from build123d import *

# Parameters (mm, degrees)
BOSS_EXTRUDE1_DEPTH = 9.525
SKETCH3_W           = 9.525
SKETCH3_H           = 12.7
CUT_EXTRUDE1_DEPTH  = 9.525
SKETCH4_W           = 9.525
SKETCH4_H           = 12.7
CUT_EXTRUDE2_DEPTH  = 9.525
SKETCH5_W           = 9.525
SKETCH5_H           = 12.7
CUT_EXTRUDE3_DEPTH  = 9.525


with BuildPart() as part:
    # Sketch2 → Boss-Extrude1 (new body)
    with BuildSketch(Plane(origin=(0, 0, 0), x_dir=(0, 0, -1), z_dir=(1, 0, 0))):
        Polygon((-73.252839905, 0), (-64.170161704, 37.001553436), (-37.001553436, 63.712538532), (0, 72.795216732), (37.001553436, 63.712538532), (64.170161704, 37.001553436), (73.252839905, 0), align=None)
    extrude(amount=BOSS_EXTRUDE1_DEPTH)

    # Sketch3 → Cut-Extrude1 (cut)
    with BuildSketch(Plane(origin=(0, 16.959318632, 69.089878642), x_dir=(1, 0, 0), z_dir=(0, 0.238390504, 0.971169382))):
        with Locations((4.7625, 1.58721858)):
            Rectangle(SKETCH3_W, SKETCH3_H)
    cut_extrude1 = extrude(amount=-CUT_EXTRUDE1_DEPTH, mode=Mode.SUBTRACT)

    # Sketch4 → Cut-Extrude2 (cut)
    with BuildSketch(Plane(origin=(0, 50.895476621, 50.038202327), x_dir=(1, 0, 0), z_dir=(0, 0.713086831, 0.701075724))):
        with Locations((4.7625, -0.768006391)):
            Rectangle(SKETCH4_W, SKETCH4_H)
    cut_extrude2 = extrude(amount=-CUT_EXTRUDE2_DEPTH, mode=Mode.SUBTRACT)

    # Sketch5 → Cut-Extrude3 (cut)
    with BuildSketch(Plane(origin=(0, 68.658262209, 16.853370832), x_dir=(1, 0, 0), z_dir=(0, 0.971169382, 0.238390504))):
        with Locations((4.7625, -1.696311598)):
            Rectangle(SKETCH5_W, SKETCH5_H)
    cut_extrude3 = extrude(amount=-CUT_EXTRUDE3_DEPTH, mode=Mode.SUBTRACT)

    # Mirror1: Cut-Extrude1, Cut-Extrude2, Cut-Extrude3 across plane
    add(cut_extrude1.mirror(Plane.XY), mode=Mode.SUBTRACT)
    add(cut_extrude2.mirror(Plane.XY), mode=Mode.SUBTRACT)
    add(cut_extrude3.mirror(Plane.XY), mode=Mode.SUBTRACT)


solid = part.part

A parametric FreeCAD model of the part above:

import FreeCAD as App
import Part
import Sketcher

V = App.Vector
Q = App.Units.Quantity

doc = App.newDocument("Part")
body = doc.addObject("PartDesign::Body", "Body")

# Sketch on YZ plane
sketch1 = body.newObject("Sketcher::SketchObject", "Sketch")
sketch1.AttachmentSupport = (doc.getObject("YZ_Plane"), [""])
sketch1.MapMode = "FlatFace"
sketch1.addGeometry(Part.LineSegment(V(37, 64, 0), V(0, 73, 0)), False)
sketch1.addGeometry(Part.LineSegment(V(0, 73, 0), V(0, -73, 0)), False)
sketch1.addGeometry(Part.LineSegment(V(0, -73, 0), V(37, -64, 0)), False)
sketch1.addGeometry(Part.LineSegment(V(37, -64, 0), V(64, -37, 0)), False)
sketch1.addGeometry(Part.LineSegment(V(64, -37, 0), V(73, 0, 0)), False)
sketch1.addGeometry(Part.LineSegment(V(73, 0, 0), V(64, 37, 0)), False)
sketch1.addGeometry(Part.LineSegment(V(64, 37, 0), V(37, 64, 0)), False)
sketch1.addConstraint(Sketcher.Constraint("Coincident", 0, 2, 1, 1))
sketch1.addConstraint(Sketcher.Constraint("Coincident", 1, 2, 2, 1))
sketch1.addConstraint(Sketcher.Constraint("Coincident", 2, 2, 3, 1))
sketch1.addConstraint(Sketcher.Constraint("Coincident", 3, 2, 4, 1))
sketch1.addConstraint(Sketcher.Constraint("Coincident", 4, 2, 5, 1))
sketch1.addConstraint(Sketcher.Constraint("Coincident", 5, 2, 6, 1))
sketch1.addConstraint(Sketcher.Constraint("Coincident", 6, 2, 0, 1))
sketch1.addConstraint(Sketcher.Constraint("Vertical", 1))
sketch1.addConstraint(Sketcher.Constraint("Symmetric", 0, 2, 1, 2, -1, 1))
sketch1.addConstraint(Sketcher.Constraint("Symmetric", 3, 2, 5, 2, -1))
sketch1.addConstraint(Sketcher.Constraint("Symmetric", 2, 2, 6, 2, -1))
sketch1.addConstraint(Sketcher.Constraint("PointOnObject", 4, 2, -1))
sketch1.addConstraint(Sketcher.Constraint("Perpendicular", 0, 4))
sketch1.addConstraint(Sketcher.Constraint("Equal", 2, 3))
sketch1.addConstraint(Sketcher.Constraint("Equal", 3, 4))
sketch1.addConstraint(Sketcher.Constraint("Distance", 0, Q("1.5 in")))
sketch1.addConstraint(Sketcher.Constraint("DistanceY", 1, 2, 1, 1, Q("146.50568 mm")))
sketch1.addConstraint(Sketcher.Constraint("DistanceY", 2, 2, 0, 2, Q("137.423002 mm")))
pad1 = body.newObject("PartDesign::Pad", "Pad")
pad1.Profile = sketch1
pad1.Length = Q("0.375 in")

# Sketch on an angled plane
sketch2 = body.newObject("Sketcher::SketchObject", "Sketch001")
sketch2.Placement = App.Placement(V(0, 16.959319, 69.089879), App.Rotation(V(1, 0, 0), V(0, 0.971169382, -0.238390504), V(0, 0.238390504, 0.971169382), "ZXY"))
sketch2.addGeometry(Part.LineSegment(V(0, 8, 0), V(0, -5, 0)), False)
sketch2.addGeometry(Part.LineSegment(V(0, -5, 0), V(10, -5, 0)), False)
sketch2.addGeometry(Part.LineSegment(V(10, -5, 0), V(10, 8, 0)), False)
sketch2.addGeometry(Part.LineSegment(V(10, 8, 0), V(0, 8, 0)), False)
sketch2.addConstraint(Sketcher.Constraint("Coincident", 0, 2, 1, 1))
sketch2.addConstraint(Sketcher.Constraint("Coincident", 1, 2, 2, 1))
sketch2.addConstraint(Sketcher.Constraint("Coincident", 2, 2, 3, 1))
sketch2.addConstraint(Sketcher.Constraint("Coincident", 3, 2, 0, 1))
sketch2.addConstraint(Sketcher.Constraint("Vertical", 0))
sketch2.addConstraint(Sketcher.Constraint("Horizontal", 1))
sketch2.addConstraint(Sketcher.Constraint("Vertical", 2))
sketch2.addConstraint(Sketcher.Constraint("Horizontal", 3))
sketch2.addConstraint(Sketcher.Constraint("PointOnObject", 0, 2, -2))
sketch2.addConstraint(Sketcher.Constraint("DistanceY", 0, 2, 0, 1, Q("0.5 in")))
sketch2.addConstraint(Sketcher.Constraint("DistanceX", 1, 1, 1, 2, Q("0.375 in")))
sketch2.addConstraint(Sketcher.Constraint("DistanceY", 0, 2, -1, 1, Q("4.762781 mm")))
pocket1 = body.newObject("PartDesign::Pocket", "Pocket")
pocket1.Profile = sketch2
pocket1.Length = Q("0.375 in")

# Sketch on an angled plane
sketch3 = body.newObject("Sketcher::SketchObject", "Sketch002")
sketch3.Placement = App.Placement(V(0, 50.895477, 50.038202), App.Rotation(V(1, 0, 0), V(0, 0.701075724, -0.713086831), V(0, 0.713086831, 0.701075724), "ZXY"))
sketch3.addGeometry(Part.LineSegment(V(0, 6, 0), V(0, -7, 0)), False)
sketch3.addGeometry(Part.LineSegment(V(0, -7, 0), V(10, -7, 0)), False)
sketch3.addGeometry(Part.LineSegment(V(10, -7, 0), V(10, 6, 0)), False)
sketch3.addGeometry(Part.LineSegment(V(10, 6, 0), V(0, 6, 0)), False)
sketch3.addConstraint(Sketcher.Constraint("Coincident", 0, 2, 1, 1))
sketch3.addConstraint(Sketcher.Constraint("Coincident", 1, 2, 2, 1))
sketch3.addConstraint(Sketcher.Constraint("Coincident", 2, 2, 3, 1))
sketch3.addConstraint(Sketcher.Constraint("Coincident", 3, 2, 0, 1))
sketch3.addConstraint(Sketcher.Constraint("Vertical", 0))
sketch3.addConstraint(Sketcher.Constraint("Horizontal", 1))
sketch3.addConstraint(Sketcher.Constraint("Vertical", 2))
sketch3.addConstraint(Sketcher.Constraint("Horizontal", 3))
sketch3.addConstraint(Sketcher.Constraint("PointOnObject", 0, 2, -2))
sketch3.addConstraint(Sketcher.Constraint("DistanceY", 0, 2, 0, 1, Q("0.5 in")))
sketch3.addConstraint(Sketcher.Constraint("DistanceX", 1, 1, 1, 2, Q("0.375 in")))
sketch3.addConstraint(Sketcher.Constraint("DistanceY", 0, 2, -1, 1, Q("7.118006 mm")))
pocket2 = body.newObject("PartDesign::Pocket", "Pocket001")
pocket2.Profile = sketch3
pocket2.Length = Q("0.375 in")

# Sketch on an angled plane
sketch4 = body.newObject("Sketcher::SketchObject", "Sketch003")
sketch4.Placement = App.Placement(V(0, 68.658262, 16.853371), App.Rotation(V(1, 0, 0), V(0, 0.238390504, -0.971169382), V(0, 0.971169382, 0.238390504), "ZXY"))
sketch4.addGeometry(Part.LineSegment(V(0, 5, 0), V(0, -8, 0)), False)
sketch4.addGeometry(Part.LineSegment(V(0, -8, 0), V(10, -8, 0)), False)
sketch4.addGeometry(Part.LineSegment(V(10, -8, 0), V(10, 5, 0)), False)
sketch4.addGeometry(Part.LineSegment(V(10, 5, 0), V(0, 5, 0)), False)
sketch4.addConstraint(Sketcher.Constraint("Coincident", 0, 2, 1, 1))
sketch4.addConstraint(Sketcher.Constraint("Coincident", 1, 2, 2, 1))
sketch4.addConstraint(Sketcher.Constraint("Coincident", 2, 2, 3, 1))
sketch4.addConstraint(Sketcher.Constraint("Coincident", 3, 2, 0, 1))
sketch4.addConstraint(Sketcher.Constraint("Vertical", 0))
sketch4.addConstraint(Sketcher.Constraint("Horizontal", 1))
sketch4.addConstraint(Sketcher.Constraint("Vertical", 2))
sketch4.addConstraint(Sketcher.Constraint("Horizontal", 3))
sketch4.addConstraint(Sketcher.Constraint("PointOnObject", 0, 2, -2))
sketch4.addConstraint(Sketcher.Constraint("DistanceY", 0, 2, 0, 1, Q("0.5 in")))
sketch4.addConstraint(Sketcher.Constraint("DistanceX", 1, 1, 1, 2, Q("0.375 in")))
sketch4.addConstraint(Sketcher.Constraint("DistanceY", 0, 2, -1, 1, Q("8.046312 mm")))
pocket3 = body.newObject("PartDesign::Pocket", "Pocket002")
pocket3.Profile = sketch4
pocket3.Length = Q("0.375 in")
doc.recompute()

mirrored = body.newObject("PartDesign::Mirrored", "Mirrored")
mirrored.Originals = [pocket1, pocket2, pocket3]
mirrored.MirrorPlane = (doc.getObject("XY_Plane"), [""])
body.Tip = mirrored

doc.recompute()
